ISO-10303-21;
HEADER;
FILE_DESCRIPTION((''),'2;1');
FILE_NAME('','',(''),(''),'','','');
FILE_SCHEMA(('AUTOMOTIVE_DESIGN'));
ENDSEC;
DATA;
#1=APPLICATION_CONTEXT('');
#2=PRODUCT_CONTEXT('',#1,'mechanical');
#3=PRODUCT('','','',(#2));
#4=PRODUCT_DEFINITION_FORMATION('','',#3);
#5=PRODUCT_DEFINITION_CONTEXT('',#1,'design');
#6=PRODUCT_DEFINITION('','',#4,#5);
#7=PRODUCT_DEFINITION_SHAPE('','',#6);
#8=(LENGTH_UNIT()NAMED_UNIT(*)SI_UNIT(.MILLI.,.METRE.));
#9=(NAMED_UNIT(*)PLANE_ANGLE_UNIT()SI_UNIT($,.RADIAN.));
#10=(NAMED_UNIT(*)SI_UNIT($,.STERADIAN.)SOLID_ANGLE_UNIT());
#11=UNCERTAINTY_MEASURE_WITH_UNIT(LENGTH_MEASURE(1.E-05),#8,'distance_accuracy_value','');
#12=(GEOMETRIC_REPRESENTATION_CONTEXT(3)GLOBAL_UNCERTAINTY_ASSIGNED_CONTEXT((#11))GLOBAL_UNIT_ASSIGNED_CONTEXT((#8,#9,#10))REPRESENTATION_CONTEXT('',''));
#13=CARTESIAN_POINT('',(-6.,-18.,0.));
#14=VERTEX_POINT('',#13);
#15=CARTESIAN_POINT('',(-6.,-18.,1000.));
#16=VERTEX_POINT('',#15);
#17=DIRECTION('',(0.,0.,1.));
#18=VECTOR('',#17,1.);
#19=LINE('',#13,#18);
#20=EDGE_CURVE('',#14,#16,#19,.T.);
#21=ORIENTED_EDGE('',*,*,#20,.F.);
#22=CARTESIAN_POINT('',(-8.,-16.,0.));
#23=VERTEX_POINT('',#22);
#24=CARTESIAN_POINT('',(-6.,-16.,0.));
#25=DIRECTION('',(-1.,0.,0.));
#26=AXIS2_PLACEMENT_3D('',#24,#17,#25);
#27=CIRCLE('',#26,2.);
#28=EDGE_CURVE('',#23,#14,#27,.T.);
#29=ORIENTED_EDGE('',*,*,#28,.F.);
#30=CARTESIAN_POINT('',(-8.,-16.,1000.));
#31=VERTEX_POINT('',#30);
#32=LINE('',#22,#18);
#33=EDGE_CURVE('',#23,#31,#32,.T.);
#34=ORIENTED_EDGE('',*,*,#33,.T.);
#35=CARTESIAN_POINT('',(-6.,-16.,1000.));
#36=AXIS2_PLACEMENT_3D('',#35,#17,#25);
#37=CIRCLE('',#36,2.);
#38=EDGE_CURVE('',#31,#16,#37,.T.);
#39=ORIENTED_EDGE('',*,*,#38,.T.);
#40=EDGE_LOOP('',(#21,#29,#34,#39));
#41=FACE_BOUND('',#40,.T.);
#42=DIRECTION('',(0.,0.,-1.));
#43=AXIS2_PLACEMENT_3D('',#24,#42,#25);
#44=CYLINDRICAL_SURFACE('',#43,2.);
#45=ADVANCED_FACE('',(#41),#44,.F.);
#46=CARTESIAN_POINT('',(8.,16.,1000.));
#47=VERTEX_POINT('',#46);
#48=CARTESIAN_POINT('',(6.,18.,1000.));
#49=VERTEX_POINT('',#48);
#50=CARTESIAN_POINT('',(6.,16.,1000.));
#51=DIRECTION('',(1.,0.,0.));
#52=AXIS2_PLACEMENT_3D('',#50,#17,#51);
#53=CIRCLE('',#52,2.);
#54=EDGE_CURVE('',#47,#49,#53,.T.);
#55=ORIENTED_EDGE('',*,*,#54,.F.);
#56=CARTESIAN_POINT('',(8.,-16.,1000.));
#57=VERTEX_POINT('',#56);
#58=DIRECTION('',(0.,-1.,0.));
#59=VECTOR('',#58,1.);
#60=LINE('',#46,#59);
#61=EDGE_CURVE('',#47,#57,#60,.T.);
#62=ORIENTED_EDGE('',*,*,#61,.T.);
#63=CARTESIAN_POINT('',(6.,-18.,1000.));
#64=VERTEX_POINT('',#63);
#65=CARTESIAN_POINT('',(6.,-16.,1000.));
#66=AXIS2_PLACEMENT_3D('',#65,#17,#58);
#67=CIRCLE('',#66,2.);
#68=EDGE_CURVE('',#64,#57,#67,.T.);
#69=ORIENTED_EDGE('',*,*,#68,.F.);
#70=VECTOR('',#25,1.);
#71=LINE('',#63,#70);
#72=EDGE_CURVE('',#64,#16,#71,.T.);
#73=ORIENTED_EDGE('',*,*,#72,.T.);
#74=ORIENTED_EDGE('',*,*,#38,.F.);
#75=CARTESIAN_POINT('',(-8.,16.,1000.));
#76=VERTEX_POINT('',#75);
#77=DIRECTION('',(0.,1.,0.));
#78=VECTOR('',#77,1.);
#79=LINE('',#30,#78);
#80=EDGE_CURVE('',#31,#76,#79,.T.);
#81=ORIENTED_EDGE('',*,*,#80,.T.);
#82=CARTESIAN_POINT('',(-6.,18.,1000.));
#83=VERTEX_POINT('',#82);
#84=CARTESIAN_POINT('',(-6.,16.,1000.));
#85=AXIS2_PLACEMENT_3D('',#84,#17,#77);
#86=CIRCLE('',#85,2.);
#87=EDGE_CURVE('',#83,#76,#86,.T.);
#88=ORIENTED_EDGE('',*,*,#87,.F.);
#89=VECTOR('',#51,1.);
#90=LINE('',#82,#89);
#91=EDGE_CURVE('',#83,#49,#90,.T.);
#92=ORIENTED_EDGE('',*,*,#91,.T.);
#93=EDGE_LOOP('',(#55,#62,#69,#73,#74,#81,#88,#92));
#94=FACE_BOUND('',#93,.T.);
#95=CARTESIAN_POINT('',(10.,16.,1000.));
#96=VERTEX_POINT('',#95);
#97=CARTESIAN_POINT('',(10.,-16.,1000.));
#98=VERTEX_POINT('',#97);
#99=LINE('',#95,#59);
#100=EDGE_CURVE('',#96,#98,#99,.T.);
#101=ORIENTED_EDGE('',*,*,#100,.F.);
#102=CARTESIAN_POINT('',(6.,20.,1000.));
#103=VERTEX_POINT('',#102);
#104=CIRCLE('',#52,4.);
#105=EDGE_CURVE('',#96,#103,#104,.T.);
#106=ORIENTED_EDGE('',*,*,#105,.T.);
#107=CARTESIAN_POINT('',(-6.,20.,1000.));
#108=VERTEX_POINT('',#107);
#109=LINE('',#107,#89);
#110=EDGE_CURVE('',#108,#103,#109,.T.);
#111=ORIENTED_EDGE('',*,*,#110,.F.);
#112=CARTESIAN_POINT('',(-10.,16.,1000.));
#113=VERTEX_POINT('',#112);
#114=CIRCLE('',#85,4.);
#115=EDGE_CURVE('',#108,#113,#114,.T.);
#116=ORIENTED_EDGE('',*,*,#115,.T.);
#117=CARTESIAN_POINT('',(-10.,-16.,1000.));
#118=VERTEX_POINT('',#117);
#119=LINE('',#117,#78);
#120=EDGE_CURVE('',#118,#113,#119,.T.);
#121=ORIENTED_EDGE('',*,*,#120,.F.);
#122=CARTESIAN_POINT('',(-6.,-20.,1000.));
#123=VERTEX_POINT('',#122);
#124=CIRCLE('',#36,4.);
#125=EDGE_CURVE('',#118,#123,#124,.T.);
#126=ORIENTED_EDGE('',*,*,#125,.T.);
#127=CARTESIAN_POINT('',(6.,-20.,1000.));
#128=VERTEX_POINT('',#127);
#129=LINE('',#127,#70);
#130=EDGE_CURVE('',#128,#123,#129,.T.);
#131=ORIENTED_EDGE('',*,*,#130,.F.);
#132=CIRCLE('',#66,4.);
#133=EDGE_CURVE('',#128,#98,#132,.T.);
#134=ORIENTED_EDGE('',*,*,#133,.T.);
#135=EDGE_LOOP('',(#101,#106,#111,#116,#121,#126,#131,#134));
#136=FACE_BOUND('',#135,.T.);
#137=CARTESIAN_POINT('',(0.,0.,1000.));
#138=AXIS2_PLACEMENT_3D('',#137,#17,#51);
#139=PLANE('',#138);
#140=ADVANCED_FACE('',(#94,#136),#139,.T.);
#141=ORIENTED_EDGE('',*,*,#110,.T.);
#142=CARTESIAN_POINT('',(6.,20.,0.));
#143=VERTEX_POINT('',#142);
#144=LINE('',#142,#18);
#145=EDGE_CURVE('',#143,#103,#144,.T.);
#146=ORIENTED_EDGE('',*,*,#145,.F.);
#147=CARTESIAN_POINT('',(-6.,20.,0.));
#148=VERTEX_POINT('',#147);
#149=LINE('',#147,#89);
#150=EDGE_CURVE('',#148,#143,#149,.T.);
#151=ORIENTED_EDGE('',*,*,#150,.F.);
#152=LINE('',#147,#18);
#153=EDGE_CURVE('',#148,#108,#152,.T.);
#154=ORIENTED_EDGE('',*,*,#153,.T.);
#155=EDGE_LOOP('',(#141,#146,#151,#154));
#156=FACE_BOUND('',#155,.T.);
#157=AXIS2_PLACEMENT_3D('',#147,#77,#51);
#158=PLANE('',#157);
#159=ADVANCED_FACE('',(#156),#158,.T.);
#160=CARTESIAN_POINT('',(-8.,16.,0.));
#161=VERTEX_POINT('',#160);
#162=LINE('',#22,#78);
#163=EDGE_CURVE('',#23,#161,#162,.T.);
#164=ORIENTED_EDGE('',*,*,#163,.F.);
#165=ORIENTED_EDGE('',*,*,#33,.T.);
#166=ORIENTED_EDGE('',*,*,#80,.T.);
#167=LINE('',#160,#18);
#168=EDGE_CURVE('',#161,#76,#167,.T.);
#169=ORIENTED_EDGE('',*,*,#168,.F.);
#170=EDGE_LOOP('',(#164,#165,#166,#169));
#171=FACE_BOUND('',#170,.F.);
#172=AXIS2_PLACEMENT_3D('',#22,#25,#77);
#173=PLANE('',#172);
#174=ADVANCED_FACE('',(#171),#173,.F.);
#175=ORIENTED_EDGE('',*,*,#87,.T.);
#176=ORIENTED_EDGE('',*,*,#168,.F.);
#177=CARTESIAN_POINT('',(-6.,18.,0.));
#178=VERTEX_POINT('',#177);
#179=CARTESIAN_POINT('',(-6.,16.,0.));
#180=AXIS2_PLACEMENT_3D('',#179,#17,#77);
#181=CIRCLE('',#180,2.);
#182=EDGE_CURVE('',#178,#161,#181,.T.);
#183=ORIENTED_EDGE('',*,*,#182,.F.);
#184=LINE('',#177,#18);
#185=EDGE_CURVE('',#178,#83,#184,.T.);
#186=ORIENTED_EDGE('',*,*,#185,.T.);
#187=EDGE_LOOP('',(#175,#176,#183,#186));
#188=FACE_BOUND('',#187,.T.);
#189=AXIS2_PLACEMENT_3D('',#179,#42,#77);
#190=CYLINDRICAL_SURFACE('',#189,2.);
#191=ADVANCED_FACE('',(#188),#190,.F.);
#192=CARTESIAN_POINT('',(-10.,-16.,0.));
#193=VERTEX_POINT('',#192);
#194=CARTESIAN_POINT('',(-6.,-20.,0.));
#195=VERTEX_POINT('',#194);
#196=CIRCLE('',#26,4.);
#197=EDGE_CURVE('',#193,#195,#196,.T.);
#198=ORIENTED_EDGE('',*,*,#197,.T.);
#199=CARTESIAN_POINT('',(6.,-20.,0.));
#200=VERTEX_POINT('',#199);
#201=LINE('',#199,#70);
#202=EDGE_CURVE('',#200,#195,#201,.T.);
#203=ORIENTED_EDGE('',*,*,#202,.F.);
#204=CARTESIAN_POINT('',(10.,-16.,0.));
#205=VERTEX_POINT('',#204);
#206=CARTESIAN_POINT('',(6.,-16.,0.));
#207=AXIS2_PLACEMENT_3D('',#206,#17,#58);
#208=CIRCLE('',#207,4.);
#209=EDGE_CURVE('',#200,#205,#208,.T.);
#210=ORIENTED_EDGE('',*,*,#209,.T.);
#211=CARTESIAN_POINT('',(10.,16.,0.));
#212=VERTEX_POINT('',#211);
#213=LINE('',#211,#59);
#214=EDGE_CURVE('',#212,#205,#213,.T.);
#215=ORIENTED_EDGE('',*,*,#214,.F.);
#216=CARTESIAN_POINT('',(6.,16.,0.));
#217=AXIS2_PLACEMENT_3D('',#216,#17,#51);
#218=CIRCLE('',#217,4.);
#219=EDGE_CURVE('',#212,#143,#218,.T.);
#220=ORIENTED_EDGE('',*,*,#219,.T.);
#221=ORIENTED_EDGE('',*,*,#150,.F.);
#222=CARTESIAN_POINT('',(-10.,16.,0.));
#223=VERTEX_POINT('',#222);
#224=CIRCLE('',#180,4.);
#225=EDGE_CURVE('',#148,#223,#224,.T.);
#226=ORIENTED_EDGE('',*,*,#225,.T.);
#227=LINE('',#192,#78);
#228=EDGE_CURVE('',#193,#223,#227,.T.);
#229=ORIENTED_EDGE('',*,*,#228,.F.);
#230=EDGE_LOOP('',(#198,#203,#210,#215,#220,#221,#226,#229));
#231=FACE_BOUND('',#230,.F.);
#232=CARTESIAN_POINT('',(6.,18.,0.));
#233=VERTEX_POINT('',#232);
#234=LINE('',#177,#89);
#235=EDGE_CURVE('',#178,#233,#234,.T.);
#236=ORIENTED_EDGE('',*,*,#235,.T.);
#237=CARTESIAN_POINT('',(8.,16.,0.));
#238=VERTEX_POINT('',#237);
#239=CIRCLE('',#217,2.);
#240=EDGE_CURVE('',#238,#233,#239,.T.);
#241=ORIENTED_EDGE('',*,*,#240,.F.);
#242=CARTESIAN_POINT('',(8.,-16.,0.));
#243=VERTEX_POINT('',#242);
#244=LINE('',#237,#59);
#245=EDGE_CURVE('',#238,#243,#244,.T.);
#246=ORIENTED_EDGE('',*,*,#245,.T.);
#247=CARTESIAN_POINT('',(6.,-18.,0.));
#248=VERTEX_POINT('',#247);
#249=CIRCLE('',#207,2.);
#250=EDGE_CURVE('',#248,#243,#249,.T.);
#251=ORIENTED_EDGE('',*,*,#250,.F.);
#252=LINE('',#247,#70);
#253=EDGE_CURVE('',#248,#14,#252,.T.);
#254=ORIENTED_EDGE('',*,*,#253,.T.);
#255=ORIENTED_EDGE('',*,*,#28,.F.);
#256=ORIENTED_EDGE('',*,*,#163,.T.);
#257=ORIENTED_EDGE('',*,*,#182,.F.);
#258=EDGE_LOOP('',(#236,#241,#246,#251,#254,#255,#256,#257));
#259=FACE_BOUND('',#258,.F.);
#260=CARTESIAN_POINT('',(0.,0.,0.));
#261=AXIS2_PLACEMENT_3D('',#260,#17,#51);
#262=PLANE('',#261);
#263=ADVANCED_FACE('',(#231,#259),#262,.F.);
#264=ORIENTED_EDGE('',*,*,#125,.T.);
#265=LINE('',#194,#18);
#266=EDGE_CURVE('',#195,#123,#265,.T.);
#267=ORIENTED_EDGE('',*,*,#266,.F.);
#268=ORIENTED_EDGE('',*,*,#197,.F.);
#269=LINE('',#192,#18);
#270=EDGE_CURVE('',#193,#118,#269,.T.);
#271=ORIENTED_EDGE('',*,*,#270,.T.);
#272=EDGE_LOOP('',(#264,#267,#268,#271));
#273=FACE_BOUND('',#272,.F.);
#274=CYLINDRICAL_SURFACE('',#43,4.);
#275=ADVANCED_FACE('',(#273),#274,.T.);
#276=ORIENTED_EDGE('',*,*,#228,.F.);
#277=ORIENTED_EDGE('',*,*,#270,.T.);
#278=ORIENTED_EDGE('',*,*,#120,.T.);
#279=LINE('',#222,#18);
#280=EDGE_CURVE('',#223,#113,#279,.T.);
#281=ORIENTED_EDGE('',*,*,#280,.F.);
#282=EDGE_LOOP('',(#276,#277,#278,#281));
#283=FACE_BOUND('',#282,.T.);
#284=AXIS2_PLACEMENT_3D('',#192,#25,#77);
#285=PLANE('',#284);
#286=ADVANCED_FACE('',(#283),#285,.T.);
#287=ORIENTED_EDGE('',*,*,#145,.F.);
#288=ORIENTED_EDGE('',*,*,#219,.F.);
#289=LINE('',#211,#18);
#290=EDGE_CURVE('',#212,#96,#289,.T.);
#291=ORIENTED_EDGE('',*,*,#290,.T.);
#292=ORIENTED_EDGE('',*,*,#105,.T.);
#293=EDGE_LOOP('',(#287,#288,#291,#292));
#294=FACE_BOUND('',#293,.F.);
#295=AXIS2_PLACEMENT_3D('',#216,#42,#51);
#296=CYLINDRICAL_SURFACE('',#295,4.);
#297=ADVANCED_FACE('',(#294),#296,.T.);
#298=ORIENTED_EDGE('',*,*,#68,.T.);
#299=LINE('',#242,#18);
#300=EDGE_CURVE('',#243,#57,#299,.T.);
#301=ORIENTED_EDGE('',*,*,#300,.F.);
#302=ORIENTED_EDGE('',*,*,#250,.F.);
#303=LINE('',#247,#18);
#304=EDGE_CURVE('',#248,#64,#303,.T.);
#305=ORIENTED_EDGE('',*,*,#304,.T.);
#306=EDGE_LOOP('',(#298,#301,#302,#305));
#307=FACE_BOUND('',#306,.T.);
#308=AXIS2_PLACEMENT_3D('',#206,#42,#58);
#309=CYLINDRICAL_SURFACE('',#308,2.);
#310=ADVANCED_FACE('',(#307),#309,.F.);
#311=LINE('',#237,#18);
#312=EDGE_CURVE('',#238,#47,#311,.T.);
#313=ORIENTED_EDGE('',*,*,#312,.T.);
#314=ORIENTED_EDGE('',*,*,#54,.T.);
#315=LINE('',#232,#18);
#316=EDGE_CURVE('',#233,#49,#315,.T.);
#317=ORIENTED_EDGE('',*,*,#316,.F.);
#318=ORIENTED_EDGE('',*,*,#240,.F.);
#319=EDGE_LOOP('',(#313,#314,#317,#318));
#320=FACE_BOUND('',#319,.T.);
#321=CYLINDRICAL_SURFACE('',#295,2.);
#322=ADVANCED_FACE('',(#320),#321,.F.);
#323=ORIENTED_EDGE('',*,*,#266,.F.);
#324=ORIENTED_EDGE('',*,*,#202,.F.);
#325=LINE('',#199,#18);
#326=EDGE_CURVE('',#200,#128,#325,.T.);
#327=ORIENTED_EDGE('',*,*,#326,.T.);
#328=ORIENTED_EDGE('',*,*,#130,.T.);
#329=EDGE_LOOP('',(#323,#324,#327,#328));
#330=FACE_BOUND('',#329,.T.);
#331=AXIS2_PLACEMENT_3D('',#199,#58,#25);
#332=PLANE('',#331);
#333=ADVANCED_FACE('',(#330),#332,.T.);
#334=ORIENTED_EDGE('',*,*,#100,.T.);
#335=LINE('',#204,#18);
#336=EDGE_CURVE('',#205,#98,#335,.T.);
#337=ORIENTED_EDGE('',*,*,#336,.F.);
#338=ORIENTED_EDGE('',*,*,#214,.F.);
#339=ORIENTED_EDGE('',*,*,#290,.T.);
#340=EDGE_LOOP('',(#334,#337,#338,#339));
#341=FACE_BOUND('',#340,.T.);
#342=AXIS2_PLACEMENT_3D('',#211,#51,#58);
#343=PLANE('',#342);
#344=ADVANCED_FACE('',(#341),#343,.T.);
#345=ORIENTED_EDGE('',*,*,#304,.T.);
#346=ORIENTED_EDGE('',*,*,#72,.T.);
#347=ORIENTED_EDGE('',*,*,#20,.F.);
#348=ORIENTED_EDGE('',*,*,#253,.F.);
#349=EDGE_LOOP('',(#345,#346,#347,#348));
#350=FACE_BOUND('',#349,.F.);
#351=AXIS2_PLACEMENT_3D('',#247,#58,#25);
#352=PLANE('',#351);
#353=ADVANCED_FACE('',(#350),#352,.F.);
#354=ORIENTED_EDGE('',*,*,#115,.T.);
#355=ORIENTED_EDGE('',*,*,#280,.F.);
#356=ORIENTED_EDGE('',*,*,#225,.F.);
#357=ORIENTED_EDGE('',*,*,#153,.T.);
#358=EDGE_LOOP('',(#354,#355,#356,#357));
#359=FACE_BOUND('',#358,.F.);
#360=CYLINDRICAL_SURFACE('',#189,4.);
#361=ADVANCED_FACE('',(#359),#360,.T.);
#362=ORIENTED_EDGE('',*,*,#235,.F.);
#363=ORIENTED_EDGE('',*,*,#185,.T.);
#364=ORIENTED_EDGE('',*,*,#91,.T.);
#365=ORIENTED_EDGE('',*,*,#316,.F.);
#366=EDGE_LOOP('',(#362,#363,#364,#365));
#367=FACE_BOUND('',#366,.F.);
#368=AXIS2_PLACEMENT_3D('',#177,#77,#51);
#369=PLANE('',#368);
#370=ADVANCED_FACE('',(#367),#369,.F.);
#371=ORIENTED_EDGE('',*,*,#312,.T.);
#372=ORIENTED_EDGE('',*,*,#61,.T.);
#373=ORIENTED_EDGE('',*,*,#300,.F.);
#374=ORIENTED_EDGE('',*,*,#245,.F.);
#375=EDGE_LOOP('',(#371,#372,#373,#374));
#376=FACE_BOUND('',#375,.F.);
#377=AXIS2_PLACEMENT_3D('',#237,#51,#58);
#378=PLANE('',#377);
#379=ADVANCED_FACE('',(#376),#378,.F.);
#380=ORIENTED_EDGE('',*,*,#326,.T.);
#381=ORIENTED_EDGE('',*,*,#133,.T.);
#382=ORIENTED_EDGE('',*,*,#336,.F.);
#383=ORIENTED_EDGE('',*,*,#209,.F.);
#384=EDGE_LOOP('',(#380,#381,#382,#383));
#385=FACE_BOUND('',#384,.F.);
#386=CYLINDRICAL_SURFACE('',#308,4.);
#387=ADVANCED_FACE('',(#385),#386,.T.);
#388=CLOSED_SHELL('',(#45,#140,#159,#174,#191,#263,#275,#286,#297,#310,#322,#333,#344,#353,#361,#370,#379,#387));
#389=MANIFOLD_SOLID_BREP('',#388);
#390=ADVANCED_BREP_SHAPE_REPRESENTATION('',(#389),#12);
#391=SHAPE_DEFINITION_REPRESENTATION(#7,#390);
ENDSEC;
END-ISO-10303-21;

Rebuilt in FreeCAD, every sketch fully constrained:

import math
import FreeCAD as App
import Part
import Sketcher
from FreeCAD import Vector
Q = App.Units.Quantity

doc = App.newDocument("Part")
body = doc.addObject("PartDesign::Body", "Body")

# Sketch on XY plane
sketch1 = body.newObject("Sketcher::SketchObject", "Sketch")
sketch1.AttachmentSupport = (doc.getObject("XY_Plane"), [""])
sketch1.MapMode = "FlatFace"
sketch1.addGeometry([
    Part.LineSegment(Vector(-10, 16, 0), Vector(-10, -16, 0)),  # 0
    Part.ArcOfCircle(Part.Circle(Vector(-6, -16, 0), Vector(0, 0, 1), 4), math.radians(180), math.radians(270)),  # 1
    Part.LineSegment(Vector(-6, -20, 0), Vector(6, -20, 0)),  # 2
    Part.ArcOfCircle(Part.Circle(Vector(6, -16, 0), Vector(0, 0, 1), 4), math.radians(-90), math.radians(0)),  # 3
    Part.LineSegment(Vector(10, -16, 0), Vector(10, 16, 0)),  # 4
    Part.ArcOfCircle(Part.Circle(Vector(6, 16, 0), Vector(0, 0, 1), 4), math.radians(0), math.radians(90)),  # 5
    Part.LineSegment(Vector(6, 20, 0), Vector(-6, 20, 0)),  # 6
    Part.ArcOfCircle(Part.Circle(Vector(-6, 16, 0), Vector(0, 0, 1), 4), math.radians(90), math.radians(180)),  # 7
    Part.ArcOfCircle(Part.Circle(Vector(-6, 16, 0), Vector(0, 0, 1), 2), math.radians(90), math.radians(180)),  # 8
    Part.LineSegment(Vector(-6, 18, 0), Vector(6, 18, 0)),  # 9
    Part.ArcOfCircle(Part.Circle(Vector(6, 16, 0), Vector(0, 0, 1), 2), math.radians(0), math.radians(90)),  # 10
    Part.LineSegment(Vector(8, 16, 0), Vector(8, -16, 0)),  # 11
    Part.ArcOfCircle(Part.Circle(Vector(6, -16, 0), Vector(0, 0, 1), 2), math.radians(-90), math.radians(0)),  # 12
    Part.LineSegment(Vector(6, -18, 0), Vector(-6, -18, 0)),  # 13
    Part.ArcOfCircle(Part.Circle(Vector(-6, -16, 0), Vector(0, 0, 1), 2), math.radians(180), math.radians(270)),  # 14
    Part.LineSegment(Vector(-8, -16, 0), Vector(-8, 16, 0)),  # 15
], False)
sketch1.addConstraint([
    Sketcher.Constraint("Tangent", 0, 2, 1, 1),
    Sketcher.Constraint("Tangent", 1, 2, 2, 1),
    Sketcher.Constraint("Tangent", 2, 2, 3, 1),
    Sketcher.Constraint("Tangent", 3, 2, 4, 1),
    Sketcher.Constraint("Tangent", 4, 2, 5, 1),
    Sketcher.Constraint("Tangent", 5, 2, 6, 1),
    Sketcher.Constraint("Tangent", 6, 2, 7, 1),
    Sketcher.Constraint("Tangent", 7, 2, 0, 1),
    Sketcher.Constraint("Tangent", 8, 1, 9, 1),
    Sketcher.Constraint("Tangent", 9, 2, 10, 2),
    Sketcher.Constraint("Tangent", 10, 1, 11, 1),
    Sketcher.Constraint("Tangent", 11, 2, 12, 2),
    Sketcher.Constraint("Tangent", 12, 1, 13, 1),
    Sketcher.Constraint("Tangent", 13, 2, 14, 2),
    Sketcher.Constraint("Tangent", 14, 1, 15, 1),
    Sketcher.Constraint("Tangent", 15, 2, 8, 2),
    Sketcher.Constraint("Vertical", 0),
    Sketcher.Constraint("Horizontal", 2),
    Sketcher.Constraint("Vertical", 4),
    Sketcher.Constraint("Horizontal", 6),
    Sketcher.Constraint("Horizontal", 9),
    Sketcher.Constraint("Vertical", 11),
    Sketcher.Constraint("Horizontal", 13),
    Sketcher.Constraint("Vertical", 15),
    Sketcher.Constraint("Coincident", 8, 3, 7, 3),
    Sketcher.Constraint("Coincident", 10, 3, 5, 3),
    Sketcher.Constraint("Coincident", 12, 3, 3, 3),
    Sketcher.Constraint("Equal", 1, 3),
    Sketcher.Constraint("Equal", 3, 5),
    Sketcher.Constraint("Equal", 5, 7),
    Sketcher.Constraint("Equal", 12, 14),
    Sketcher.Constraint("Symmetric", 1, 3, 5, 3, -1, 1),
    Sketcher.Constraint("Radius", 1, Q("4 mm")),
    Sketcher.Constraint("Radius", 8, Q("2 mm")),
    Sketcher.Constraint("DistanceX", 0, 2, -1, 1, Q("10 mm")),
    Sketcher.Constraint("DistanceY", 1, 2, -1, 1, Q("20 mm")),
])
pad1 = body.newObject("PartDesign::Pad", "Pad")
pad1.Profile = sketch1
pad1.Length = 1000

doc.recompute()
